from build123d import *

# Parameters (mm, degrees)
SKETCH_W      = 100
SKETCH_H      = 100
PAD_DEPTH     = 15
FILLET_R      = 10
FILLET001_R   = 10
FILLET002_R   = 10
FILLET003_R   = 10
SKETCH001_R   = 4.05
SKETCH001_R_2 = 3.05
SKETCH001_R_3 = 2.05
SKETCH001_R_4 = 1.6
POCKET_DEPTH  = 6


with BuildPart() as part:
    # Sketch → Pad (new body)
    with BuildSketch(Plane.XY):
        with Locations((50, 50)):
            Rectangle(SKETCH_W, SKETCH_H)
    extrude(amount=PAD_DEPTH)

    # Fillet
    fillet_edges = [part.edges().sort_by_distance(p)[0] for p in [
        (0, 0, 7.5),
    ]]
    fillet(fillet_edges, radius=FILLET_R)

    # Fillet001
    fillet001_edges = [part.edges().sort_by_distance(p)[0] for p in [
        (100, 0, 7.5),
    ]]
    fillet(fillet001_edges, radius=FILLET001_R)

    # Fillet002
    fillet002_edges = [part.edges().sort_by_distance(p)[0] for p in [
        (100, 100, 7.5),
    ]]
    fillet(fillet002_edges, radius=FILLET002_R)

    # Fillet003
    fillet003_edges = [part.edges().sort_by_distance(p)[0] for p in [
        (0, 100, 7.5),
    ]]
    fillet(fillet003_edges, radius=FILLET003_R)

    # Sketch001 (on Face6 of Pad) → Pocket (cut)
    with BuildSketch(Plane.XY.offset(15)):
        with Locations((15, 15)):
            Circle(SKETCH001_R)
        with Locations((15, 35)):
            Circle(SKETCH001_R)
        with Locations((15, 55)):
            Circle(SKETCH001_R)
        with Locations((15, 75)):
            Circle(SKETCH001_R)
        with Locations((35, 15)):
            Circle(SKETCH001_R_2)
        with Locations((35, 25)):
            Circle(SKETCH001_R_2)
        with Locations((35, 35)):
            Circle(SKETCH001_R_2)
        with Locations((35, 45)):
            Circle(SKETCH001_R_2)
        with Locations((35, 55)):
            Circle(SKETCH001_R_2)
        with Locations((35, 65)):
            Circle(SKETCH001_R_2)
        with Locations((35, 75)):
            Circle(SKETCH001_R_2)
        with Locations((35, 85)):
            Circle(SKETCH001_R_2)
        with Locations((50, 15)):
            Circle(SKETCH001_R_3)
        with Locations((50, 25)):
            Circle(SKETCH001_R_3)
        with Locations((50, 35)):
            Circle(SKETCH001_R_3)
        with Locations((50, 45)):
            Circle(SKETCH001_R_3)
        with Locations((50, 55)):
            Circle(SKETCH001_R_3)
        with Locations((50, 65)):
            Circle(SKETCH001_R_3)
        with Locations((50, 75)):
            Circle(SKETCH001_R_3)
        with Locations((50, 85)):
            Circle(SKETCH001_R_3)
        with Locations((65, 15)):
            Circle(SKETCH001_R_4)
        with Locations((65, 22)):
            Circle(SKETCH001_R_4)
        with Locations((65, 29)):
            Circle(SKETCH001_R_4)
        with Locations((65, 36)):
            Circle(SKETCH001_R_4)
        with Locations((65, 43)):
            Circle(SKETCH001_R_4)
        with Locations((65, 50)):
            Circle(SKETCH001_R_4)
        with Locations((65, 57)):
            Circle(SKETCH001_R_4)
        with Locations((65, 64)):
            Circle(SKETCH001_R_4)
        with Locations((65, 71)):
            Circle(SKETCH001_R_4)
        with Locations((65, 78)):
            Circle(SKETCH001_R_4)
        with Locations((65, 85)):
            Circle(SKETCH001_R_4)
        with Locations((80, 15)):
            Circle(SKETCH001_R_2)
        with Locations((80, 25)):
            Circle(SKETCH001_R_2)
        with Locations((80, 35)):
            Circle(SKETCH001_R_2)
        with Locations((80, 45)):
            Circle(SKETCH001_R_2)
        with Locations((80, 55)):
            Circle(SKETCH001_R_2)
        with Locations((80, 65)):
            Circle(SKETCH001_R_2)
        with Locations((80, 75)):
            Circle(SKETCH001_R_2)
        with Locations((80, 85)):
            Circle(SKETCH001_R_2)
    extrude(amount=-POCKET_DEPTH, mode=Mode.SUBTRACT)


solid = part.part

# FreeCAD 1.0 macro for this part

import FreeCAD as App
import Part
import Sketcher
Q = App.Units.Quantity


def edges_at(feature, points):
    """Names of the edges that pass closest to the given points."""
    edges = feature.Shape.Edges
    near = lambda p: min(range(len(edges)), key=lambda i: edges[i].distToShape(Part.Vertex(*p))[0])
    return sorted({f"Edge{near(p) + 1}" for p in points})


def add_polygon(sketch, points):
    """Adds a closed chain of lines whose ends are joined by coincident constraints."""
    first, n = sketch.GeometryCount, len(points)
    for a, b in zip(points, points[1:] + points[:1]):
        sketch.addGeometry(Part.LineSegment(App.Vector(*a, 0), App.Vector(*b, 0)), False)
    for i in range(n):
        sketch.addConstraint(Sketcher.Constraint("Coincident", first + i, 2, first + (i + 1) % n, 1))

doc = App.newDocument("Part")
params = doc.addObject("Spreadsheet::Sheet", "Params")
for row, (alias, value) in enumerate([
    ("sketch1_width", "100 mm"),
    ("pad1_length", "15 mm"),
    ("fillet_radius", "10 mm"),
    ("fillet2_radius", "10 mm"),
    ("fillet3_radius", "10 mm"),
    ("fillet4_radius", "10 mm"),
    ("sketch2_diameter", "8.1 mm"),
    ("sketch2_diameter2", "6.1 mm"),
    ("sketch2_diameter3", "4.1 mm"),
    ("sketch2_diameter4", "3.2 mm"),
    ("pocket1_length", "6 mm"),
], start=1):
    params.set(f"A{row}", alias)
    params.set(f"B{row}", "=" + value)
    params.setAlias(f"B{row}", alias)

body = doc.addObject("PartDesign::Body", "Body")

# Sketch on XY plane
sketch1 = doc.addObject("Sketcher::SketchObject", "Sketch")
body.addObject(sketch1)
sketch1.AttachmentSupport = (doc.XY_Plane, [""])
sketch1.MapMode = "FlatFace"
add_polygon(sketch1, [(0, 100), (0, 0), (100, 0), (100, 100)])  # lines 0-3
sketch1.addConstraint([
    Sketcher.Constraint("Vertical", 0),
    Sketcher.Constraint("Horizontal", 1),
    Sketcher.Constraint("Vertical", 2),
    Sketcher.Constraint("Horizontal", 3),
    Sketcher.Constraint("Coincident", 0, 2, -1, 1),
    Sketcher.Constraint("Equal", 3, 0),
    Sketcher.Constraint("DistanceX", 1, 1, 1, 2, Q("100 mm")),
])
sketch1.setExpression("Constraints[10]", "Params.sketch1_width")
pad1 = doc.addObject("PartDesign::Pad", "Pad")
body.addObject(pad1)
pad1.Profile = sketch1
pad1.setExpression("Length", "Params.pad1_length")
doc.recompute()

fillet = doc.addObject("PartDesign::Fillet", "Fillet")
body.addObject(fillet)
fillet.Base = (pad1, edges_at(pad1, [(0, 0, 7.5)]))
fillet.setExpression("Radius", "Params.fillet_radius")
doc.recompute()

fillet2 = doc.addObject("PartDesign::Fillet", "Fillet001")
body.addObject(fillet2)
fillet2.Base = (fillet, edges_at(fillet, [(100, 0, 7.5)]))
fillet2.setExpression("Radius", "Params.fillet2_radius")
doc.recompute()

fillet3 = doc.addObject("PartDesign::Fillet", "Fillet002")
body.addObject(fillet3)
fillet3.Base = (fillet2, edges_at(fillet2, [(100, 100, 7.5)]))
fillet3.setExpression("Radius", "Params.fillet3_radius")
doc.recompute()

fillet4 = doc.addObject("PartDesign::Fillet", "Fillet003")
body.addObject(fillet4)
fillet4.Base = (fillet3, edges_at(fillet3, [(0, 100, 7.5)]))
fillet4.setExpression("Radius", "Params.fillet4_radius")

# Sketch on XY plane
sketch2 = doc.addObject("Sketcher::SketchObject", "Sketch001")
body.addObject(sketch2)
sketch2.AttachmentSupport = (doc.XY_Plane, [""])
sketch2.MapMode = "FlatFace"
sketch2.AttachmentOffset = App.Placement(App.Vector(0, 0, 15), App.Rotation())
sketch2.addGeometry([
    Part.Circle(App.Vector(15, 15, 0), App.Vector(0, 0, 1), 4),  # 0
    Part.Circle(App.Vector(15, 35, 0), App.Vector(0, 0, 1), 4),  # 1
    Part.Circle(App.Vector(15, 55, 0), App.Vector(0, 0, 1), 4),  # 2
    Part.Circle(App.Vector(15, 75, 0), App.Vector(0, 0, 1), 4),  # 3
    Part.Circle(App.Vector(35, 15, 0), App.Vector(0, 0, 1), 3),  # 4
    Part.Circle(App.Vector(35, 25, 0), App.Vector(0, 0, 1), 3),  # 5
    Part.Circle(App.Vector(35, 35, 0), App.Vector(0, 0, 1), 3),  # 6
    Part.Circle(App.Vector(35, 45, 0), App.Vector(0, 0, 1), 3),  # 7
    Part.Circle(App.Vector(35, 55, 0), App.Vector(0, 0, 1), 3),  # 8
    Part.Circle(App.Vector(35, 65, 0), App.Vector(0, 0, 1), 3),  # 9
    Part.Circle(App.Vector(35, 75, 0), App.Vector(0, 0, 1), 3),  # 10
    Part.Circle(App.Vector(35, 85, 0), App.Vector(0, 0, 1), 3),  # 11
    Part.Circle(App.Vector(50, 15, 0), App.Vector(0, 0, 1), 2),  # 12
    Part.Circle(App.Vector(50, 25, 0), App.Vector(0, 0, 1), 2),  # 13
    Part.Circle(App.Vector(50, 35, 0), App.Vector(0, 0, 1), 2),  # 14
    Part.Circle(App.Vector(50, 45, 0), App.Vector(0, 0, 1), 2),  # 15
    Part.Circle(App.Vector(50, 55, 0), App.Vector(0, 0, 1), 2),  # 16
    Part.Circle(App.Vector(50, 65, 0), App.Vector(0, 0, 1), 2),  # 17
    Part.Circle(App.Vector(50, 75, 0), App.Vector(0, 0, 1), 2),  # 18
    Part.Circle(App.Vector(50, 85, 0), App.Vector(0, 0, 1), 2),  # 19
    Part.Circle(App.Vector(65, 15, 0), App.Vector(0, 0, 1), 1.6),  # 20
    Part.Circle(App.Vector(65, 22, 0), App.Vector(0, 0, 1), 1.6),  # 21
    Part.Circle(App.Vector(65, 29, 0), App.Vector(0, 0, 1), 1.6),  # 22
    Part.Circle(App.Vector(65, 36, 0), App.Vector(0, 0, 1), 1.6),  # 23
    Part.Circle(App.Vector(65, 43, 0), App.Vector(0, 0, 1), 1.6),  # 24
    Part.Circle(App.Vector(65, 50, 0), App.Vector(0, 0, 1), 1.6),  # 25
    Part.Circle(App.Vector(65, 57, 0), App.Vector(0, 0, 1), 1.6),  # 26
    Part.Circle(App.Vector(65, 64, 0), App.Vector(0, 0, 1), 1.6),  # 27
    Part.Circle(App.Vector(65, 71, 0), App.Vector(0, 0, 1), 1.6),  # 28
    Part.Circle(App.Vector(65, 78, 0), App.Vector(0, 0, 1), 1.6),  # 29
    Part.Circle(App.Vector(65, 85, 0), App.Vector(0, 0, 1), 1.6),  # 30
    Part.Circle(App.Vector(80, 15, 0), App.Vector(0, 0, 1), 3),  # 31
    Part.Circle(App.Vector(80, 25, 0), App.Vector(0, 0, 1), 3),  # 32
    Part.Circle(App.Vector(80, 35, 0), App.Vector(0, 0, 1), 3),  # 33
    Part.Circle(App.Vector(80, 45, 0), App.Vector(0, 0, 1), 3),  # 34
    Part.Circle(App.Vector(80, 55, 0), App.Vector(0, 0, 1), 3),  # 35
    Part.Circle(App.Vector(80, 65, 0), App.Vector(0, 0, 1), 3),  # 36
    Part.Circle(App.Vector(80, 75, 0), App.Vector(0, 0, 1), 3),  # 37
    Part.Circle(App.Vector(80, 85, 0), App.Vector(0, 0, 1), 3),  # 38
], False)
sketch2.addConstraint([
    Sketcher.Constraint("Equal", 0, 1),
    Sketcher.Constraint("Equal", 1, 2),
    Sketcher.Constraint("Equal", 2, 3),
    Sketcher.Constraint("Equal", 4, 5),
    Sketcher.Constraint("Equal", 5, 6),
    Sketcher.Constraint("Equal", 6, 7),
    Sketcher.Constraint("Equal", 7, 8),
    Sketcher.Constraint("Equal", 8, 9),
    Sketcher.Constraint("Equal", 9, 10),
    Sketcher.Constraint("Equal", 10, 11),
    Sketcher.Constraint("Equal", 12, 13),
    Sketcher.Constraint("Equal", 13, 14),
    Sketcher.Constraint("Equal", 14, 15),
    Sketcher.Constraint("Equal", 15, 16),
    Sketcher.Constraint("Equal", 16, 17),
    Sketcher.Constraint("Equal", 17, 18),
    Sketcher.Constraint("Equal", 18, 19),
    Sketcher.Constraint("Equal", 20, 21),
    Sketcher.Constraint("Equal", 21, 22),
    Sketcher.Constraint("Equal", 22, 23),
    Sketcher.Constraint("Equal", 23, 24),
    Sketcher.Constraint("Equal", 24, 25),
    Sketcher.Constraint("Equal", 25, 26),
    Sketcher.Constraint("Equal", 26, 27),
    Sketcher.Constraint("Equal", 27, 28),
    Sketcher.Constraint("Equal", 28, 29),
    Sketcher.Constraint("Equal", 29, 30),
    Sketcher.Constraint("Equal", 11, 31),
    Sketcher.Constraint("Equal", 31, 32),
    Sketcher.Constraint("Equal", 32, 33),
    Sketcher.Constraint("Equal", 33, 34),
    Sketcher.Constraint("Equal", 34, 35),
    Sketcher.Constraint("Equal", 35, 36),
    Sketcher.Constraint("Equal", 36, 37),
    Sketcher.Constraint("Equal", 37, 38),
    Sketcher.Constraint("Horizontal", 0, 3, 4, 3),
    Sketcher.Constraint("Horizontal", 1, 3, 6, 3),
    Sketcher.Constraint("Horizontal", 2, 3, 8, 3),
    Sketcher.Constraint("Horizontal", 3, 3, 10, 3),
    Sketcher.Constraint("Horizontal", 4, 3, 12, 3),
    Sketcher.Constraint("Horizontal", 5, 3, 13, 3),
    Sketcher.Constraint("Horizontal", 6, 3, 14, 3),
    Sketcher.Constraint("Horizontal", 7, 3, 15, 3),
    Sketcher.Constraint("Horizontal", 8, 3, 16, 3),
    Sketcher.Constraint("Horizontal", 9, 3, 17, 3),
    Sketcher.Constraint("Horizontal", 10, 3, 18, 3),
    Sketcher.Constraint("Horizontal", 11, 3, 19, 3),
    Sketcher.Constraint("Horizontal", 12, 3, 20, 3),
    Sketcher.Constraint("Horizontal", 19, 3, 30, 3),
    Sketcher.Constraint("Horizontal", 20, 3, 31, 3),
    Sketcher.Constraint("Horizontal", 13, 3, 32, 3),
    Sketcher.Constraint("Horizontal", 14, 3, 33, 3),
    Sketcher.Constraint("Horizontal", 15, 3, 34, 3),
    Sketcher.Constraint("Horizontal", 16, 3, 35, 3),
    Sketcher.Constraint("Horizontal", 17, 3, 36, 3),
    Sketcher.Constraint("Horizontal", 18, 3, 37, 3),
    Sketcher.Constraint("Horizontal", 30, 3, 38, 3),
    Sketcher.Constraint("Vertical", 0, 3, 1, 3),
    Sketcher.Constraint("Vertical", 1, 3, 2, 3),
    Sketcher.Constraint("Vertical", 2, 3, 3, 3),
    Sketcher.Constraint("Vertical", 4, 3, 5, 3),
    Sketcher.Constraint("Vertical", 5, 3, 6, 3),
    Sketcher.Constraint("Vertical", 6, 3, 7, 3),
    Sketcher.Constraint("Vertical", 7, 3, 8, 3),
    Sketcher.Constraint("Vertical", 8, 3, 9, 3),
    Sketcher.Constraint("Vertical", 9, 3, 10, 3),
    Sketcher.Constraint("Vertical", 10, 3, 11, 3),
    Sketcher.Constraint("Vertical", 12, 3, 13, 3),
    Sketcher.Constraint("Vertical", 13, 3, 14, 3),
    Sketcher.Constraint("Vertical", 14, 3, 15, 3),
    Sketcher.Constraint("Vertical", 15, 3, 16, 3),
    Sketcher.Constraint("Vertical", 16, 3, 17, 3),
    Sketcher.Constraint("Vertical", 17, 3, 18, 3),
    Sketcher.Constraint("Vertical", 18, 3, 19, 3),
    Sketcher.Constraint("Vertical", 20, 3, 21, 3),
    Sketcher.Constraint("Vertical", 21, 3, 22, 3),
    Sketcher.Constraint("Vertical", 22, 3, 23, 3),
    Sketcher.Constraint("Vertical", 23, 3, 24, 3),
    Sketcher.Constraint("Vertical", 24, 3, 25, 3),
    Sketcher.Constraint("Vertical", 25, 3, 26, 3),
    Sketcher.Constraint("Vertical", 26, 3, 27, 3),
    Sketcher.Constraint("Vertical", 27, 3, 28, 3),
    Sketcher.Constraint("Vertical", 28, 3, 29, 3),
    Sketcher.Constraint("Vertical", 29, 3, 30, 3),
    Sketcher.Constraint("Vertical", 31, 3, 32, 3),
    Sketcher.Constraint("Vertical", 32, 3, 33, 3),
    Sketcher.Constraint("Vertical", 33, 3, 34, 3),
    Sketcher.Constraint("Vertical", 34, 3, 35, 3),
    Sketcher.Constraint("Vertical", 35, 3, 36, 3),
    Sketcher.Constraint("Vertical", 36, 3, 37, 3),
    Sketcher.Constraint("Vertical", 37, 3, 38, 3),
    Sketcher.Constraint("Diameter", 0, Q("8.1 mm")),
    Sketcher.Constraint("Diameter", 4, Q("6.1 mm")),
    Sketcher.Constraint("Diameter", 12, Q("4.1 mm")),
    Sketcher.Constraint("Diameter", 20, Q("3.2 mm")),
    Sketcher.Constraint("DistanceX", -1, 1, 0, 3, Q("15 mm")),
    Sketcher.Constraint("DistanceY", -1, 1, 0, 3, Q("15 mm")),
    Sketcher.Constraint("DistanceY", -1, 1, 1, 3, Q("35 mm")),
    Sketcher.Constraint("DistanceY", -1, 1, 2, 3, Q("55 mm")),
    Sketcher.Constraint("DistanceY", -1, 1, 3, 3, Q("75 mm")),
    Sketcher.Constraint("DistanceX", -1, 1, 4, 3, Q("35 mm")),
    Sketcher.Constraint("DistanceY", -1, 1, 5, 3, Q("25 mm")),
    Sketcher.Constraint("DistanceY", -1, 1, 7, 3, Q("45 mm")),
    Sketcher.Constraint("DistanceY", -1, 1, 9, 3, Q("65 mm")),
    Sketcher.Constraint("DistanceY", -1, 1, 11, 3, Q("85 mm")),
    Sketcher.Constraint("DistanceX", -1, 1, 12, 3, Q("50 mm")),
    Sketcher.Constraint("DistanceX", -1, 1, 20, 3, Q("65 mm")),
    Sketcher.Constraint("DistanceY", -1, 1, 21, 3, Q("22 mm")),
    Sketcher.Constraint("DistanceY", -1, 1, 22, 3, Q("29 mm")),
    Sketcher.Constraint("DistanceY", -1, 1, 23, 3, Q("36 mm")),
    Sketcher.Constraint("DistanceY", -1, 1, 24, 3, Q("43 mm")),
    Sketcher.Constraint("DistanceY", -1, 1, 25, 3, Q("50 mm")),
    Sketcher.Constraint("DistanceY", -1, 1, 26, 3, Q("57 mm")),
    Sketcher.Constraint("DistanceY", -1, 1, 27, 3, Q("64 mm")),
    Sketcher.Constraint("DistanceY", -1, 1, 28, 3, Q("71 mm")),
    Sketcher.Constraint("DistanceY", -1, 1, 29, 3, Q("78 mm")),
    Sketcher.Constraint("DistanceX", -1, 1, 31, 3, Q("80 mm")),
])
sketch2.setExpression("Constraints[91]", "Params.sketch2_diameter")
sketch2.setExpression("Constraints[92]", "Params.sketch2_diameter2")
sketch2.setExpression("Constraints[93]", "Params.sketch2_diameter3")
sketch2.setExpression("Constraints[94]", "Params.sketch2_diameter4")
pocket1 = doc.addObject("PartDesign::Pocket", "Pocket")
body.addObject(pocket1)
pocket1.Profile = sketch2
pocket1.setExpression("Length", "Params.pocket1_length")

doc.recompute()
